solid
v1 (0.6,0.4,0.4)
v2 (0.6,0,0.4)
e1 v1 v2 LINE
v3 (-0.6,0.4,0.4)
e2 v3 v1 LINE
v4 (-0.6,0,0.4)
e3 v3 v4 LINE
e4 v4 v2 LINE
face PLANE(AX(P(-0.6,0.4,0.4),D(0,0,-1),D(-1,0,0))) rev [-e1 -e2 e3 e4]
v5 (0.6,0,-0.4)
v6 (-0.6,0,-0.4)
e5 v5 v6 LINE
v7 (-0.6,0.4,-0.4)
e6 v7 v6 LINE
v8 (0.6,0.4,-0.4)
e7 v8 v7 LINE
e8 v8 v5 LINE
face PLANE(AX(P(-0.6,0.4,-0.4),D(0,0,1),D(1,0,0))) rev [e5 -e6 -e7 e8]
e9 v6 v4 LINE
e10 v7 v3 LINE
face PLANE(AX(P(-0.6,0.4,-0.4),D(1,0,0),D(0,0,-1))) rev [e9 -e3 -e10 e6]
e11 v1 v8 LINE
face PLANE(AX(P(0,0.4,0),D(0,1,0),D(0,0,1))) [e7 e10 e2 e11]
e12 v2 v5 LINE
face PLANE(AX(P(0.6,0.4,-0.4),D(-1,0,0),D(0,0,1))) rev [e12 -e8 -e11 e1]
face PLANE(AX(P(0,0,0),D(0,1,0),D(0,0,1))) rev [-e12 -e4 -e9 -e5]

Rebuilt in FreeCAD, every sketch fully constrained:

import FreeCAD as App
import Part
import Sketcher
from FreeCAD import Vector


def add_polygon(sketch, points):
    """Adds a closed chain of lines whose ends are joined by coincident constraints."""
    first, n = sketch.GeometryCount, len(points)
    for a, b in zip(points, points[1:] + points[:1]):
        sketch.addGeometry(Part.LineSegment(App.Vector(*a, 0), App.Vector(*b, 0)), False)
    for i in range(n):
        sketch.addConstraint(Sketcher.Constraint("Coincident", first + i, 2, first + (i + 1) % n, 1))

doc = App.newDocument("Part")
body = doc.addObject("PartDesign::Body", "Body")

# Sketch on XZ plane
sketch1 = doc.addObject("Sketcher::SketchObject", "Sketch")
body.addObject(sketch1)
sketch1.AttachmentSupport = (doc.XZ_Plane, [""])
sketch1.MapMode = "FlatFace"
add_polygon(sketch1, [(-0.6, -0.4), (-0.6, 0.4), (0.6, 0.4), (0.6, -0.4)])  # lines 0-3
sketch1.addConstraint(Sketcher.Constraint("Vertical", 0))
sketch1.addConstraint(Sketcher.Constraint("Horizontal", 1))
sketch1.addConstraint(Sketcher.Constraint("Vertical", 2))
sketch1.addConstraint(Sketcher.Constraint("Horizontal", 3))
sketch1.addConstraint(Sketcher.Constraint("Symmetric", 0, 2, 2, 2, -1, 1))
sketch1.addConstraint(Sketcher.Constraint("DistanceX", 1, 1, 1, 2, 1.2))
sketch1.addConstraint(Sketcher.Constraint("DistanceY", 0, 1, 0, 2, 0.8))
pad1 = doc.addObject("PartDesign::Pad", "Pad")
body.addObject(pad1)
pad1.Profile = sketch1
pad1.Length = 0.4
pad1.Reversed = True

doc.recompute()
